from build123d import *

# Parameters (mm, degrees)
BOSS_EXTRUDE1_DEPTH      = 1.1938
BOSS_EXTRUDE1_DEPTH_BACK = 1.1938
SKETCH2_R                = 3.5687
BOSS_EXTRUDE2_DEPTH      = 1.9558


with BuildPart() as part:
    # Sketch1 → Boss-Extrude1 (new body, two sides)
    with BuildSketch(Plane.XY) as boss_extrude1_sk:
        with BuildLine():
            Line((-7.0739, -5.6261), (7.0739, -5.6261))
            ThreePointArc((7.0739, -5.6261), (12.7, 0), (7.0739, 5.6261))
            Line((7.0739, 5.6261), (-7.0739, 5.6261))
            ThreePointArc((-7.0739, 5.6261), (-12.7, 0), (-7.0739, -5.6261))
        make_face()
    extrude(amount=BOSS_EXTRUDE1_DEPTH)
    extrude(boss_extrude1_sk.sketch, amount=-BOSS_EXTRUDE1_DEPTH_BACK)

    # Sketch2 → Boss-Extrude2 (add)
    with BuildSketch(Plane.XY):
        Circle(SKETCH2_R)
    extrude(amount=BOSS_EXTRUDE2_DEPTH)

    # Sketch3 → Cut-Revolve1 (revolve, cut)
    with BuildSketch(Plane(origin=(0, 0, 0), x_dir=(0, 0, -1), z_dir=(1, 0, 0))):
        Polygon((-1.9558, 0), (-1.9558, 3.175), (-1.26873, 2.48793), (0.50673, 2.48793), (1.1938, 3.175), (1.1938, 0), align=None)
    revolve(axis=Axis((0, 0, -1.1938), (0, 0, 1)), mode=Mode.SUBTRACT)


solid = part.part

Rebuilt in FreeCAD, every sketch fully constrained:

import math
import FreeCAD as App
import Part
import Sketcher
Q = App.Units.Quantity

doc = App.newDocument("Part")
body = doc.addObject("PartDesign::Body", "Body")

# Sketch on XY plane
sketch1 = body.newObject("Sketcher::SketchObject", "Sketch")
sketch1.AttachmentSupport = (doc.getObject("XY_Plane"), [""])
sketch1.MapMode = "FlatFace"
sketch1.addGeometry([
    Part.LineSegment(App.Vector(-7.0739, -5.6261, 0), App.Vector(7.0739, -5.6261, 0)),
    Part.ArcOfCircle(Part.Circle(App.Vector(7.0739, 0, 0), App.Vector(0, 0, 1), 5.6261), math.radians(-90), math.radians(90)),
    Part.LineSegment(App.Vector(7.0739, 5.6261, 0), App.Vector(-7.0739, 5.6261, 0)),
    Part.ArcOfCircle(Part.Circle(App.Vector(-7.0739, 0, 0), App.Vector(0, 0, 1), 5.6261), math.radians(90), math.radians(270)),
], False)
sketch1.addConstraint([
    Sketcher.Constraint("Tangent", 0, 2, 1, 1),
    Sketcher.Constraint("Tangent", 1, 2, 2, 1),
    Sketcher.Constraint("Tangent", 2, 2, 3, 1),
    Sketcher.Constraint("Tangent", 3, 2, 0, 1),
    Sketcher.Constraint("Horizontal", 0),
    Sketcher.Constraint("Horizontal", 2),
    Sketcher.Constraint("Symmetric", 1, 3, 3, 3, -1, 1),
    Sketcher.Constraint("Radius", 1, Q("0.2215 in")),
    Sketcher.Constraint("DistanceX", 0, 1, 0, 2, Q("0.557 in")),
])
pad1 = body.newObject("PartDesign::Pad", "Pad")
pad1.Profile = sketch1
pad1.Type = "TwoLengths"
pad1.Length = Q("0.047 in")
pad1.Length2 = Q("0.047 in")

# Sketch on XY plane
sketch2 = body.newObject("Sketcher::SketchObject", "Sketch001")
sketch2.AttachmentSupport = (doc.getObject("XY_Plane"), [""])
sketch2.MapMode = "FlatFace"
sketch2.addGeometry(Part.Circle(App.Vector(0, 0, 0), App.Vector(0, 0, 1), 3.5687), False)
sketch2.addConstraint([
    Sketcher.Constraint("Coincident", 0, 3, -1, 1),
    Sketcher.Constraint("Diameter", 0, Q("0.281 in")),
])
pad2 = body.newObject("PartDesign::Pad", "Pad001")
pad2.Profile = sketch2
pad2.Length = Q("0.077 in")

# Sketch on YZ plane
sketch3 = body.newObject("Sketcher::SketchObject", "Sketch002")
sketch3.AttachmentSupport = (doc.getObject("YZ_Plane"), [""])
sketch3.MapMode = "FlatFace"
sketch3.addGeometry([
    Part.LineSegment(App.Vector(3.175, 1.9558, 0), App.Vector(0, 1.9558, 0)),  # 0
    Part.LineSegment(App.Vector(0, 1.9558, 0), App.Vector(0, -1.1938, 0)),  # 1
    Part.LineSegment(App.Vector(0, -1.1938, 0), App.Vector(3.175, -1.1938, 0)),  # 2
    Part.LineSegment(App.Vector(3.175, -1.1938, 0), App.Vector(2.48793, -0.50673, 0)),  # 3
    Part.LineSegment(App.Vector(2.48793, -0.50673, 0), App.Vector(2.48793, 1.26873, 0)),  # 4
    Part.LineSegment(App.Vector(2.48793, 1.26873, 0), App.Vector(3.175, 1.9558, 0)),  # 5
], False)
sketch3.addConstraint([
    Sketcher.Constraint("Coincident", 0, 2, 1, 1),
    Sketcher.Constraint("Coincident", 1, 2, 2, 1),
    Sketcher.Constraint("Coincident", 2, 2, 3, 1),
    Sketcher.Constraint("Coincident", 3, 2, 4, 1),
    Sketcher.Constraint("Coincident", 4, 2, 5, 1),
    Sketcher.Constraint("Coincident", 5, 2, 0, 1),
    Sketcher.Constraint("Horizontal", 0),
    Sketcher.Constraint("Vertical", 1),
    Sketcher.Constraint("Horizontal", 2),
    Sketcher.Constraint("Vertical", 4),
    Sketcher.Constraint("PointOnObject", 0, 2, -2),
    Sketcher.Constraint("Perpendicular", 3, 5),
    Sketcher.Constraint("Vertical", 2, 2, 5, 2),
    Sketcher.Constraint("Equal", 3, 5),
    Sketcher.Constraint("DistanceX", 0, 2, 0, 1, Q("0.125 in")),
    Sketcher.Constraint("DistanceY", 1, 2, 1, 1, Q("0.124 in")),
    Sketcher.Constraint("DistanceY", 4, 1, 4, 2, Q("0.0699 in")),
    Sketcher.Constraint("DistanceY", -1, 1, 0, 2, Q("0.077 in")),
])
groove = body.newObject("PartDesign::Groove", "Groove")
groove.Profile = sketch3
groove.ReferenceAxis = (sketch3, ["V_Axis"])
groove.Angle = 360

doc.recompute()
